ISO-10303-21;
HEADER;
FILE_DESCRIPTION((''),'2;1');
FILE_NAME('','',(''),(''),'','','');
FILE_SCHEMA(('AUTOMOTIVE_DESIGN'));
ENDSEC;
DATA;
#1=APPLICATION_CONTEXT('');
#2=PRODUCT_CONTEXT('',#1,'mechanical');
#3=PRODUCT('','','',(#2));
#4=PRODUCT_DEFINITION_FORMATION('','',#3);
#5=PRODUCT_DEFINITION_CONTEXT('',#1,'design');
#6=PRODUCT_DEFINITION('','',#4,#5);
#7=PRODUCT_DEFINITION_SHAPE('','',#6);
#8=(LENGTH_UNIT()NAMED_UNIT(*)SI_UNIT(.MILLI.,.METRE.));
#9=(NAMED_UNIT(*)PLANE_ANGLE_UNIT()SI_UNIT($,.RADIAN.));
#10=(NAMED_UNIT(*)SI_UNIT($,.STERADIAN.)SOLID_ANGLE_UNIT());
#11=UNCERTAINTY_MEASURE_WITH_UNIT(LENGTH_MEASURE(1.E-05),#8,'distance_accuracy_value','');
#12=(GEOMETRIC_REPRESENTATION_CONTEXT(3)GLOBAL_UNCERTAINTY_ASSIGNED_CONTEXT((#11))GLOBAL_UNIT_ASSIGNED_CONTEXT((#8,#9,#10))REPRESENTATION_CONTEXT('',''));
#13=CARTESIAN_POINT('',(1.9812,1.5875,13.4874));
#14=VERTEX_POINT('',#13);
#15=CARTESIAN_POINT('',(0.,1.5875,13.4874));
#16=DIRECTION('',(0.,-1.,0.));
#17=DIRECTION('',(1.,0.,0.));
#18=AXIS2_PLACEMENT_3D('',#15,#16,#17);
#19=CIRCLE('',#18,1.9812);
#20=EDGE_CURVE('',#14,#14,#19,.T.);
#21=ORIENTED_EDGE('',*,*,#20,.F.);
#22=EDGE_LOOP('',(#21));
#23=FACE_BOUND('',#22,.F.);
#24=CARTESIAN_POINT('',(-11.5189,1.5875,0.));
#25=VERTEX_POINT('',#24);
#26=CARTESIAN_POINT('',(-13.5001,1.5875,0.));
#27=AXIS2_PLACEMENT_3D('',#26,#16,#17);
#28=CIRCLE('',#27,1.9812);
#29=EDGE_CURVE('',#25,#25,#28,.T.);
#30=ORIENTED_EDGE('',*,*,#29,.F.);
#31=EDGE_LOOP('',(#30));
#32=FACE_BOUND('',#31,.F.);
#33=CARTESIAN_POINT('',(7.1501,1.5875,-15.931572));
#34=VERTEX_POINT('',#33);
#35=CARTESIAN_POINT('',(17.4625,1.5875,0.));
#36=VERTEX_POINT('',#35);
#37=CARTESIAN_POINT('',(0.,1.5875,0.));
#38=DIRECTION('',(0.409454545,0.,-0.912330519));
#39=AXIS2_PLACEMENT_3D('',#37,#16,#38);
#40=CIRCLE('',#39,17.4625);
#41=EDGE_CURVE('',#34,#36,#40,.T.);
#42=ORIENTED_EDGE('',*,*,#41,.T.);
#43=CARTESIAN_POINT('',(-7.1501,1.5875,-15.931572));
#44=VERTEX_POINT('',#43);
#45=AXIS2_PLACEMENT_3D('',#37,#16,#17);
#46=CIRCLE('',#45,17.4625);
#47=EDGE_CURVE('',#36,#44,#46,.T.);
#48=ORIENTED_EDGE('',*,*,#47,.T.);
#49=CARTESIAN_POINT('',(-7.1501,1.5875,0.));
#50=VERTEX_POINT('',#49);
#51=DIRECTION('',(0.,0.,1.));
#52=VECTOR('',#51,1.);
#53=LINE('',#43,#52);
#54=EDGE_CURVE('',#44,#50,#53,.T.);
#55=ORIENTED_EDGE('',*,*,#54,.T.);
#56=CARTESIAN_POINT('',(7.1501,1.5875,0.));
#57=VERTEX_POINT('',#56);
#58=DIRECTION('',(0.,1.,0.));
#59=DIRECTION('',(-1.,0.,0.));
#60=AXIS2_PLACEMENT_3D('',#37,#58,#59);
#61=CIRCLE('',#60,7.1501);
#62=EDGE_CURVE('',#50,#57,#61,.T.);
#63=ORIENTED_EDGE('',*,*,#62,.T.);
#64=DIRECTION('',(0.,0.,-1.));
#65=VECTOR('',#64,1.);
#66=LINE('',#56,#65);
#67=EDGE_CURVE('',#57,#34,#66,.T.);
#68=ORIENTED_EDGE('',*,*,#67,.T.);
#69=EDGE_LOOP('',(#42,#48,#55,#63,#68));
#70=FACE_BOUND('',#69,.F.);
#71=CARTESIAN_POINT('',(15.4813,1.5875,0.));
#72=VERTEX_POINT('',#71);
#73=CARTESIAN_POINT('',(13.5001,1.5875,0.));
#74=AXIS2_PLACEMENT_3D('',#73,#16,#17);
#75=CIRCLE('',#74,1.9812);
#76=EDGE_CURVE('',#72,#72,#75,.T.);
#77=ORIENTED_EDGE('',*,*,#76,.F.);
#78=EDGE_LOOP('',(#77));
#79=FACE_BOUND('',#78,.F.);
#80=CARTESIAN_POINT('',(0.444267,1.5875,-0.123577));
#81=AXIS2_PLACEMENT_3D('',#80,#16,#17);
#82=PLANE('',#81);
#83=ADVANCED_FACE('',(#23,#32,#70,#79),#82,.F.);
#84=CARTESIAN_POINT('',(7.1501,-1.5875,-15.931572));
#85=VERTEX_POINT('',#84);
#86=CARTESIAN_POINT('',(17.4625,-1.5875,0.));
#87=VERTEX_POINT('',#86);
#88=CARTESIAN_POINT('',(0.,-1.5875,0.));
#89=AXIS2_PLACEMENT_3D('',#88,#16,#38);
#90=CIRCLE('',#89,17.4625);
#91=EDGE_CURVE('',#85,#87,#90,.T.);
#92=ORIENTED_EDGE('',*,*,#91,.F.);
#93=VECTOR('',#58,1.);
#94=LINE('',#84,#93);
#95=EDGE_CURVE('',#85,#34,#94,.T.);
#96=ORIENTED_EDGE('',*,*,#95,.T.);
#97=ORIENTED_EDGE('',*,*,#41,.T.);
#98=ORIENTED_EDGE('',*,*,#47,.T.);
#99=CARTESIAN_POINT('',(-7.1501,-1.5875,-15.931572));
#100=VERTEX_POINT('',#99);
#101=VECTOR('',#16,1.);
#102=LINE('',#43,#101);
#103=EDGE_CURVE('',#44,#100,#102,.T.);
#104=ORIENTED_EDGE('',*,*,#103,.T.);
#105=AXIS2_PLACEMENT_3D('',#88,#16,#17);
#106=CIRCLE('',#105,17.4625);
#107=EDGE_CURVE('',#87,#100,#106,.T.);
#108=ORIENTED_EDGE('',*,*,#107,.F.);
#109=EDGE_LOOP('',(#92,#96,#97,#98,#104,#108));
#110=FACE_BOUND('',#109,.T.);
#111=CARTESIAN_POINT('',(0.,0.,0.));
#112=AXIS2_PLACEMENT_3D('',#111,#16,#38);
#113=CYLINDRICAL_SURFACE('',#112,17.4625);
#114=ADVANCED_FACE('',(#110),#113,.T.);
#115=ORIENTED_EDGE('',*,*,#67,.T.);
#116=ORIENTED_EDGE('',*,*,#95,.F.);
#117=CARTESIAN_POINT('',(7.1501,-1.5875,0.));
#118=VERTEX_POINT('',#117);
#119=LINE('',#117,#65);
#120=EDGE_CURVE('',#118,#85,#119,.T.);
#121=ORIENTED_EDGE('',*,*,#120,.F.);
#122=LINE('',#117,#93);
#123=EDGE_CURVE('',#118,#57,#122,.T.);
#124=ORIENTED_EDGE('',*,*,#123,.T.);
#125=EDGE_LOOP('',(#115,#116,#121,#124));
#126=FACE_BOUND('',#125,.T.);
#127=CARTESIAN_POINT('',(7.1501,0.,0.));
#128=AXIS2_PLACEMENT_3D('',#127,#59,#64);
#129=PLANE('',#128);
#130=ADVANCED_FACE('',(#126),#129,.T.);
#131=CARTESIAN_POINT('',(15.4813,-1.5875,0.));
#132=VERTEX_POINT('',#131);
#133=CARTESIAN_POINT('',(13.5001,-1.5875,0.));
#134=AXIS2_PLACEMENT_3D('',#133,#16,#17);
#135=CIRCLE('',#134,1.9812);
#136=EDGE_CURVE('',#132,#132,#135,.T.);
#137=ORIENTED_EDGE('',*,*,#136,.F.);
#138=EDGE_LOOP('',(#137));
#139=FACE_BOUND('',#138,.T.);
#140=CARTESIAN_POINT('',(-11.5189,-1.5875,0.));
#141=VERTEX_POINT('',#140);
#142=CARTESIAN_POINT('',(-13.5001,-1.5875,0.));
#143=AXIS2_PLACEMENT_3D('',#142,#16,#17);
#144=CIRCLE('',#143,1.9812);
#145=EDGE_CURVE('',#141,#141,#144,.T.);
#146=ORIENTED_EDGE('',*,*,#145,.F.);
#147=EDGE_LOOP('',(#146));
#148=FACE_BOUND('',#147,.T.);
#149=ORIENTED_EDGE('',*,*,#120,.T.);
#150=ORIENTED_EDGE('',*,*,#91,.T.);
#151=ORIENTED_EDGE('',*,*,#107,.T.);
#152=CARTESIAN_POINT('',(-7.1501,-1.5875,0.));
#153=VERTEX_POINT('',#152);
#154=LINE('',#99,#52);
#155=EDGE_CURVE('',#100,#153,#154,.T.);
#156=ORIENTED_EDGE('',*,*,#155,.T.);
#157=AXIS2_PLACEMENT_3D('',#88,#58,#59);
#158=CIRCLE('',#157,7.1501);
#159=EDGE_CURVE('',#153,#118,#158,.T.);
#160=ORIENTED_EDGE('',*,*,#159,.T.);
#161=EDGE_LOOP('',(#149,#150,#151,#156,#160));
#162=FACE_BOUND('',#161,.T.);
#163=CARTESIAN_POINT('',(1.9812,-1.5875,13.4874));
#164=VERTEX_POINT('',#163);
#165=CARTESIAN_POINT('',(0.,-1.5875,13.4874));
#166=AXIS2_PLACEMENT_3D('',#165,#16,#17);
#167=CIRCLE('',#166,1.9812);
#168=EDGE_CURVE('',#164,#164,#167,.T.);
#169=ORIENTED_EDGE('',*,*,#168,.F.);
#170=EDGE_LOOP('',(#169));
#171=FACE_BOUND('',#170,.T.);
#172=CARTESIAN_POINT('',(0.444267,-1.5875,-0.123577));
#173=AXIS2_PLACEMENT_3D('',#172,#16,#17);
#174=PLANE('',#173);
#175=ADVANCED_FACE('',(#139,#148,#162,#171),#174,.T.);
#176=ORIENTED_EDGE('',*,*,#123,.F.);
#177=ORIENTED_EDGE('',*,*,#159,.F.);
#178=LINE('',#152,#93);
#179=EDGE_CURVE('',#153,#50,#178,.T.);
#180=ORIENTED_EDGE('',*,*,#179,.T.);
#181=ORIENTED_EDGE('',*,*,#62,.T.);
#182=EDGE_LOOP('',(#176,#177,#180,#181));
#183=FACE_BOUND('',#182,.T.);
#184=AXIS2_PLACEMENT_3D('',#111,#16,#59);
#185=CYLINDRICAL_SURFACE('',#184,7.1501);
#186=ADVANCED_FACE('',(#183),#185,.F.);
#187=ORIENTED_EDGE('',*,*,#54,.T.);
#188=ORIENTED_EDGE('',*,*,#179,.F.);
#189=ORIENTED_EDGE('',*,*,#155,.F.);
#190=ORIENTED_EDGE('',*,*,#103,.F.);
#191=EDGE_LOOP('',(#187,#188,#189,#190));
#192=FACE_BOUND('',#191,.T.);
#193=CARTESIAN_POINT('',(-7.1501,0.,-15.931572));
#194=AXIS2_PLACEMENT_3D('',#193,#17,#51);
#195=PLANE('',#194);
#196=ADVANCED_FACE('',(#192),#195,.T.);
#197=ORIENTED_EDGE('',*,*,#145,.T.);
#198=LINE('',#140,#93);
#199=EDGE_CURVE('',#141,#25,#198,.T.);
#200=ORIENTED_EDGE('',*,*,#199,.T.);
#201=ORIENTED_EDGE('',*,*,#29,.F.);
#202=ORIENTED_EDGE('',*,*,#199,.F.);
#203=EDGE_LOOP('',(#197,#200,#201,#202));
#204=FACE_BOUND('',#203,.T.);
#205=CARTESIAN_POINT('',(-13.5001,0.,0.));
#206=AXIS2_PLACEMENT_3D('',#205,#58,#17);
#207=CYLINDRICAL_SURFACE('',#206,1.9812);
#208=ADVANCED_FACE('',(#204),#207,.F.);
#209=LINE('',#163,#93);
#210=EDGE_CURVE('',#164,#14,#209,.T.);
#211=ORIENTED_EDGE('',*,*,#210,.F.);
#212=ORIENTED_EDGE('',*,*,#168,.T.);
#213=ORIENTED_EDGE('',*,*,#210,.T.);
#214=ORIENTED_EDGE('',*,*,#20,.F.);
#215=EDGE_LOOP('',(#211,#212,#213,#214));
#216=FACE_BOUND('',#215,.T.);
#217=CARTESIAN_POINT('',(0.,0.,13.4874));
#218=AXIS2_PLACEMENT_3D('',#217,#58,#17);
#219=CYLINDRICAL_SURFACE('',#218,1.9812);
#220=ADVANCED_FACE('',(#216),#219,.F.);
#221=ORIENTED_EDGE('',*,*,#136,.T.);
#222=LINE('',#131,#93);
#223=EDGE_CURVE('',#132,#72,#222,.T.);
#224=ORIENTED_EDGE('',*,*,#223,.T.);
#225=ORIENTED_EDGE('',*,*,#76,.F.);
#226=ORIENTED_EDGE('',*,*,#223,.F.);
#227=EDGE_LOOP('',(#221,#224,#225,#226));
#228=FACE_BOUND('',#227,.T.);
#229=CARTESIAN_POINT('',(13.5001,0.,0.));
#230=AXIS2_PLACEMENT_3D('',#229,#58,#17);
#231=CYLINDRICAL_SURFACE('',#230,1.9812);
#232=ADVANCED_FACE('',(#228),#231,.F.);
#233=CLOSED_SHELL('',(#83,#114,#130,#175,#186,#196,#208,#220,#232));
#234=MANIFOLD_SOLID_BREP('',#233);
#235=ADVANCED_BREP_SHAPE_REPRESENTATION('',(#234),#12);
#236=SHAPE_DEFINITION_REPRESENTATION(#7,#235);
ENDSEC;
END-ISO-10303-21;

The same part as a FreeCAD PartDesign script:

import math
import FreeCAD as App
import Part
import Sketcher

V = App.Vector
Q = App.Units.Quantity

doc = App.newDocument("Part")
body = doc.addObject("PartDesign::Body", "Body")

# Sketch on XZ plane
sketch1 = doc.addObject("Sketcher::SketchObject", "Sketch")
body.addObject(sketch1)
sketch1.AttachmentSupport = (doc.XZ_Plane, [""])
sketch1.MapMode = "FlatFace"
sketch1.addGeometry(Part.ArcOfCircle(Part.Circle(V(0, 0, 0), V(0, 0, 1), 17.5), math.radians(-66), math.radians(0)), False)
sketch1.addGeometry(Part.ArcOfCircle(Part.Circle(V(0, 0, 0), V(0, 0, 1), 17.5), math.radians(0), math.radians(246)), False)
sketch1.addGeometry(Part.LineSegment(V(-7.2, -15.9, 0), V(-7.2, 0, 0)), False)
sketch1.addGeometry(Part.ArcOfCircle(Part.Circle(V(0, 0, 0), V(0, 0, 1), 7.2), math.radians(0), math.radians(180)), False)
sketch1.addGeometry(Part.LineSegment(V(7.2, 0, 0), V(7.2, -15.9, 0)), False)
sketch1.addGeometry(Part.Circle(V(-13.5, 0, 0), V(0, 0, 1), 2), False)
sketch1.addGeometry(Part.Circle(V(13.5, 0, 0), V(0, 0, 1), 2), False)
sketch1.addGeometry(Part.Circle(V(0, 13.5, 0), V(0, 0, 1), 2), False)
sketch1.addConstraint(Sketcher.Constraint("Tangent", 0, 2, 1, 1))
sketch1.addConstraint(Sketcher.Constraint("Coincident", 1, 2, 2, 1))
sketch1.addConstraint(Sketcher.Constraint("Tangent", 2, 2, 3, 2))
sketch1.addConstraint(Sketcher.Constraint("Tangent", 3, 1, 4, 1))
sketch1.addConstraint(Sketcher.Constraint("Coincident", 4, 2, 0, 1))
sketch1.addConstraint(Sketcher.Constraint("Vertical", 2))
sketch1.addConstraint(Sketcher.Constraint("Vertical", 4))
sketch1.addConstraint(Sketcher.Constraint("Coincident", 0, 3, -1, 1))
sketch1.addConstraint(Sketcher.Constraint("Coincident", 3, 3, -1, 1))
sketch1.addConstraint(Sketcher.Constraint("Equal", 0, 1))
sketch1.addConstraint(Sketcher.Constraint("Equal", 5, 6))
sketch1.addConstraint(Sketcher.Constraint("Equal", 6, 7))
sketch1.addConstraint(Sketcher.Constraint("Symmetric", 5, 3, 6, 3, -1, 1))
sketch1.addConstraint(Sketcher.Constraint("PointOnObject", 5, 3, -1))
sketch1.addConstraint(Sketcher.Constraint("PointOnObject", 7, 3, -2))
sketch1.addConstraint(Sketcher.Constraint("PointOnObject", 0, 2, -1))
sketch1.addConstraint(Sketcher.Constraint("Diameter", 5, Q("0.156 in")))
sketch1.addConstraint(Sketcher.Constraint("Radius", 0, Q("0.6875 in")))
sketch1.addConstraint(Sketcher.Constraint("Radius", 3, Q("0.2815 in")))
sketch1.addConstraint(Sketcher.Constraint("DistanceX", 5, 3, 1, 2, Q("0.25 in")))
sketch1.addConstraint(Sketcher.Constraint("DistanceY", -1, 1, 7, 3, Q("0.531 in")))
pad1 = doc.addObject("PartDesign::Pad", "Pad")
body.addObject(pad1)
pad1.Profile = sketch1
pad1.Length = Q("0.125 in")
pad1.Midplane = True

doc.recompute()
